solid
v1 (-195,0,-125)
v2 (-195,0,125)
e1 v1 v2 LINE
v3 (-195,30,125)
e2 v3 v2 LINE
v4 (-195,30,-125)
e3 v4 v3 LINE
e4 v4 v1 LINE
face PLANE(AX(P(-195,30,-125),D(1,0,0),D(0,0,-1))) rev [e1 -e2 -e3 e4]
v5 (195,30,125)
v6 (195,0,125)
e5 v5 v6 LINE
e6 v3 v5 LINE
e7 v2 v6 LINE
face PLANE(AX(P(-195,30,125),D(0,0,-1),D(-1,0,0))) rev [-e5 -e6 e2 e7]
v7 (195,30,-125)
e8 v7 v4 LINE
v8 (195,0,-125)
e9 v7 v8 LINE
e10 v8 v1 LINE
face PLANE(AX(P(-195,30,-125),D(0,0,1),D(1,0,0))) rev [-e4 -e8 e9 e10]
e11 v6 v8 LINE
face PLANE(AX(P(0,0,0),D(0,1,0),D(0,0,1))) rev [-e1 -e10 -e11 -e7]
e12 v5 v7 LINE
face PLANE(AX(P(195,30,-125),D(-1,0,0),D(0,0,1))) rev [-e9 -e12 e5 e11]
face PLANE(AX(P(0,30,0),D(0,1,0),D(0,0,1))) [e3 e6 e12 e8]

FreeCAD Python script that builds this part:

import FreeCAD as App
import Part
import Sketcher

V = App.Vector


def add_polygon(sketch, points):
    """Adds a closed chain of lines whose ends are joined by coincident constraints."""
    first, n = sketch.GeometryCount, len(points)
    for a, b in zip(points, points[1:] + points[:1]):
        sketch.addGeometry(Part.LineSegment(App.Vector(*a, 0), App.Vector(*b, 0)), False)
    for i in range(n):
        sketch.addConstraint(Sketcher.Constraint("Coincident", first + i, 2, first + (i + 1) % n, 1))

doc = App.newDocument("Part")
body = doc.addObject("PartDesign::Body", "Body")

# Sketch on XZ plane
sketch1 = doc.addObject("Sketcher::SketchObject", "Sketch")
body.addObject(sketch1)
sketch1.AttachmentSupport = (doc.XZ_Plane, [""])
sketch1.MapMode = "FlatFace"
add_polygon(sketch1, [(-195, -125), (-195, 125), (195, 125), (195, -125)])  # lines 0-3
sketch1.addConstraint([
    Sketcher.Constraint("Vertical", 0),
    Sketcher.Constraint("Horizontal", 1),
    Sketcher.Constraint("Vertical", 2),
    Sketcher.Constraint("Horizontal", 3),
    Sketcher.Constraint("Symmetric", 0, 2, 2, 2, -1, 1),
    Sketcher.Constraint("DistanceX", 1, 1, 1, 2, 390.0),
    Sketcher.Constraint("DistanceY", 0, 1, 0, 2, 250.0),
])
pad1 = doc.addObject("PartDesign::Pad", "Pad")
body.addObject(pad1)
pad1.Profile = sketch1
pad1.Length = 30
pad1.Reversed = True

doc.recompute()
